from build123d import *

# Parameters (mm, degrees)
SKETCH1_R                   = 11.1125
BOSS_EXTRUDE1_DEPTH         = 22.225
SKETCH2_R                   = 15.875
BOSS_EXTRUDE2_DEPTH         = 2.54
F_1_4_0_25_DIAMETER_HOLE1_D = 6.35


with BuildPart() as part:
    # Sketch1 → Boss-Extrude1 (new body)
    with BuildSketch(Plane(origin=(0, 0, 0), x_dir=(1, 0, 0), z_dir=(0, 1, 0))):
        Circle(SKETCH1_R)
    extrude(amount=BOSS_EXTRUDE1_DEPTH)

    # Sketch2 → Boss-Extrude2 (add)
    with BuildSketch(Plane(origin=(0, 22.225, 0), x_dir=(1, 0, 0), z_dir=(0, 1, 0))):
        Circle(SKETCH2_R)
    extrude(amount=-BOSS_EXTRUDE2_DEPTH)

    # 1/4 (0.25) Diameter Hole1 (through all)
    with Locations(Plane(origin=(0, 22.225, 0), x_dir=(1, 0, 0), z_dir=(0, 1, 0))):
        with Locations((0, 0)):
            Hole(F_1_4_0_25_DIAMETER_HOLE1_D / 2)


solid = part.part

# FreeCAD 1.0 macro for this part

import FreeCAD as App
import Part
import Sketcher

V = App.Vector
Q = App.Units.Quantity

doc = App.newDocument("Part")
body = doc.addObject("PartDesign::Body", "Body")

sketch1 = doc.addObject("Sketcher::SketchObject", "Sketch")
body.addObject(sketch1)
sketch1.AttachmentSupport = (doc.XZ_Plane, [""])
sketch1.MapMode = "FlatFace"
sketch1.addGeometry(Part.Circle(V(0, 0, 0), V(0, 0, 1), 11.1125), False)
sketch1.addConstraint([
    Sketcher.Constraint("Coincident", 0, 3, -1, 1),
    Sketcher.Constraint("Diameter", 0, Q("0.875 in")),
])
pad1 = doc.addObject("PartDesign::Pad", "Pad")
body.addObject(pad1)
pad1.Profile = sketch1
pad1.Length = Q("0.875 in")
pad1.Reversed = True

sketch2 = doc.addObject("Sketcher::SketchObject", "Sketch001")
body.addObject(sketch2)
sketch2.AttachmentSupport = (doc.XZ_Plane, [""])
sketch2.MapMode = "FlatFace"
sketch2.AttachmentOffset = App.Placement(V(0, 0, -0.875 * 25.4), App.Rotation())
sketch2.addGeometry(Part.Circle(V(0, 0, 0), V(0, 0, 1), 15.875), False)
sketch2.addConstraint([
    Sketcher.Constraint("Coincident", 0, 3, -1, 1),
    Sketcher.Constraint("Diameter", 0, Q("1.25 in")),
])
pad2 = doc.addObject("PartDesign::Pad", "Pad001")
body.addObject(pad2)
pad2.Profile = sketch2
pad2.Length = Q("0.1 in")

sketch3 = doc.addObject("Sketcher::SketchObject", "Sketch002")
body.addObject(sketch3)
sketch3.AttachmentSupport = (doc.XZ_Plane, [""])
sketch3.MapMode = "FlatFace"
sketch3.AttachmentOffset = App.Placement(V(0, 0, -0.875 * 25.4), App.Rotation())
sketch3.addGeometry(Part.Circle(V(0, 0, 0), V(0, 0, 1), 3.175), False)
sketch3.addConstraint([
    Sketcher.Constraint("Coincident", 0, 3, -1, 1),
    Sketcher.Constraint("Diameter", 0, Q("0.25 in")),
])
doc.recompute()
hole = doc.addObject("PartDesign::Hole", "Hole")
body.addObject(hole)
hole.Profile = sketch3
hole.ThreadType = "None"
hole.Diameter = Q("0.25 in")
hole.DepthType = "ThroughAll"
hole.Reversed = True

doc.recompute()
